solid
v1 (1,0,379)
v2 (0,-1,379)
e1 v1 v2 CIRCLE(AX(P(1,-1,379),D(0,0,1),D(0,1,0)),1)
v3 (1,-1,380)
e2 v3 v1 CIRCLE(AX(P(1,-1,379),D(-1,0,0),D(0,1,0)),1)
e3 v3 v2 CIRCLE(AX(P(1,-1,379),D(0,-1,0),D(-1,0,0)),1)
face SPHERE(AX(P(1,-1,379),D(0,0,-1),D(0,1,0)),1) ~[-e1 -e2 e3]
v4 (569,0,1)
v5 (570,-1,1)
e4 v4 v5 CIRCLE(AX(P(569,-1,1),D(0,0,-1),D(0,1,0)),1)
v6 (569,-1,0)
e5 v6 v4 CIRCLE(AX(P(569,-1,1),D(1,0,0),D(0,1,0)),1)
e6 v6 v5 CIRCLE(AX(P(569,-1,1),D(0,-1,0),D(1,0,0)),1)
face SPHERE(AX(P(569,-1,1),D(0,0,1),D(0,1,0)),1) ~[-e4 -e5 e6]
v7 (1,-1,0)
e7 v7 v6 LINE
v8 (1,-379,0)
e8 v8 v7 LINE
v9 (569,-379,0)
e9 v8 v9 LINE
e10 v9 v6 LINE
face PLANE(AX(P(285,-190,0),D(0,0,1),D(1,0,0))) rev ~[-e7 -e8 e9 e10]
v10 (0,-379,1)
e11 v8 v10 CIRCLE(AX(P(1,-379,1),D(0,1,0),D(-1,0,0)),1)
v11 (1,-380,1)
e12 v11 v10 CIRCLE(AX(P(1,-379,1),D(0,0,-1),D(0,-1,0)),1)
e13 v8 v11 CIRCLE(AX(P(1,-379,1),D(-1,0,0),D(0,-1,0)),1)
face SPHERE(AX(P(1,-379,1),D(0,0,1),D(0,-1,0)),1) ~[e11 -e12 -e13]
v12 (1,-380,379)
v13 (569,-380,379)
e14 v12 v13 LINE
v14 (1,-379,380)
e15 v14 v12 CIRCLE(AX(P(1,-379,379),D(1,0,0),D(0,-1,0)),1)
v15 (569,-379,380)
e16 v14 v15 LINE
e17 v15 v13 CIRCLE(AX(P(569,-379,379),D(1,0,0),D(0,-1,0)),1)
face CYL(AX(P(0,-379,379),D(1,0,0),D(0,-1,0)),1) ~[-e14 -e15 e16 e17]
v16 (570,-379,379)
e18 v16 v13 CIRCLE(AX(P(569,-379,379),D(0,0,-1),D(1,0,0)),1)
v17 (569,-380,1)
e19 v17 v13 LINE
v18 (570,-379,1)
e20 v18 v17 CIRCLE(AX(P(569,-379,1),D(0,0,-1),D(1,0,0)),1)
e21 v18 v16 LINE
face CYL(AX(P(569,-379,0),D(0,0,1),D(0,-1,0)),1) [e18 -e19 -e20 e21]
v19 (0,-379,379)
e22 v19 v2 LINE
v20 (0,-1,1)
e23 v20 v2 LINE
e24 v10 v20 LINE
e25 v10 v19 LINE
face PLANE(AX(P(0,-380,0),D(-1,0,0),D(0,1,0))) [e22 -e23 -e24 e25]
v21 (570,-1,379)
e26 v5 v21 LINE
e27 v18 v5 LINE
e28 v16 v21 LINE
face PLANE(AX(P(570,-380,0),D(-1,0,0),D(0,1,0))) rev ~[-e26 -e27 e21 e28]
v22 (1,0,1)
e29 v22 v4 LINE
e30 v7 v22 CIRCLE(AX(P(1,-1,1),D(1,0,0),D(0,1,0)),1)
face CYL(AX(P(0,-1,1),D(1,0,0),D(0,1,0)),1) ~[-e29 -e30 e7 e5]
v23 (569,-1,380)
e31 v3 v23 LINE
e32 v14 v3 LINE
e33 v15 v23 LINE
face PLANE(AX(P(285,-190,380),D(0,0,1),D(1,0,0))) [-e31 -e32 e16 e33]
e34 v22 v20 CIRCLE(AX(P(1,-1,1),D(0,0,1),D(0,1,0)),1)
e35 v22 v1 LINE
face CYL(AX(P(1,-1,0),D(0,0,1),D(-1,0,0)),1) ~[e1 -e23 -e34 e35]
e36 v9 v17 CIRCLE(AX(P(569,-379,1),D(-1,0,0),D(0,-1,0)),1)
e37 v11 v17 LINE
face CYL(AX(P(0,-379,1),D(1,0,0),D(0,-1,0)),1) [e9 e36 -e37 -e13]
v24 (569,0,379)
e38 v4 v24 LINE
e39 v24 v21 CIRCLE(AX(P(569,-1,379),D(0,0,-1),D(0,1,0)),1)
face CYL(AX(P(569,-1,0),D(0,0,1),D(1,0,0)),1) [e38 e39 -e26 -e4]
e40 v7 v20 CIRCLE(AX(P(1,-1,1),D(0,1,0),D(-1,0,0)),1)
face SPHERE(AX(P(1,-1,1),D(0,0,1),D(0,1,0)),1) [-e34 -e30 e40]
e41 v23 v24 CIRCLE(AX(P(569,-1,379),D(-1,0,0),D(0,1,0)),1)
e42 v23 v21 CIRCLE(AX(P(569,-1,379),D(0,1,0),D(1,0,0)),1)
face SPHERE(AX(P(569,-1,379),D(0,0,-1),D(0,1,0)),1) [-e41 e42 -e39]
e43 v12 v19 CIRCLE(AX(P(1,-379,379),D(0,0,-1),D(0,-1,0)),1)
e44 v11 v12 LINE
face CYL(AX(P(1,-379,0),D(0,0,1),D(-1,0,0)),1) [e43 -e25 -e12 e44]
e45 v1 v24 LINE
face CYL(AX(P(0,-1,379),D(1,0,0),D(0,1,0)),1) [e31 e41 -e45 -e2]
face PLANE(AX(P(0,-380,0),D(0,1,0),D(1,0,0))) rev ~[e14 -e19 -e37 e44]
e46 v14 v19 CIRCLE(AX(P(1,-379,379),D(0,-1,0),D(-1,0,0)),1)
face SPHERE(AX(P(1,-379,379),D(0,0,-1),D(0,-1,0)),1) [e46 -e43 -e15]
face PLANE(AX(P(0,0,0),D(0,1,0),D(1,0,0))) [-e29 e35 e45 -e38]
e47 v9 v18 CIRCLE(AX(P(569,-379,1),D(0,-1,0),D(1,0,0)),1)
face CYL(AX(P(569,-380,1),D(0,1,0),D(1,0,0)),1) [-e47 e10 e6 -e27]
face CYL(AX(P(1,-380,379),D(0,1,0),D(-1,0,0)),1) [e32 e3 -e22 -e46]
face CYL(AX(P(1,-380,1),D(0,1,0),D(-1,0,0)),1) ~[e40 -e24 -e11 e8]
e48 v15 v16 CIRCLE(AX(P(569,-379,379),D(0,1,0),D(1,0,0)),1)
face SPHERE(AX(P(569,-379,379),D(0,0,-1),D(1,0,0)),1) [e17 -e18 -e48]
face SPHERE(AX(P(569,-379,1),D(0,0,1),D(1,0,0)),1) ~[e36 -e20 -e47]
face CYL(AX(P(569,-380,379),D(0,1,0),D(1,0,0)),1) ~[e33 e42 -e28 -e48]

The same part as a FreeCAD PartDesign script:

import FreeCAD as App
import Part
import Sketcher
from FreeCAD import Vector

doc = App.newDocument("Part")
body = doc.addObject("PartDesign::Body", "Body")

# Sketch on XY plane
sketch1 = doc.addObject("Sketcher::SketchObject", "Sketch")
body.addObject(sketch1)
sketch1.AttachmentSupport = (doc.XY_Plane, [""])
sketch1.MapMode = "FlatFace"
sketch1.addGeometry(Part.LineSegment(Vector(0, 0, 0), Vector(0, -380, 0)), False)
sketch1.addGeometry(Part.LineSegment(Vector(0, -380, 0), Vector(570, -380, 0)), False)
sketch1.addGeometry(Part.LineSegment(Vector(570, -380, 0), Vector(570, 0, 0)), False)
sketch1.addGeometry(Part.LineSegment(Vector(570, 0, 0), Vector(0, 0, 0)), False)
sketch1.addConstraint(Sketcher.Constraint("Coincident", 0, 2, 1, 1))
sketch1.addConstraint(Sketcher.Constraint("Coincident", 1, 2, 2, 1))
sketch1.addConstraint(Sketcher.Constraint("Coincident", 2, 2, 3, 1))
sketch1.addConstraint(Sketcher.Constraint("Coincident", 3, 2, 0, 1))
sketch1.addConstraint(Sketcher.Constraint("Vertical", 0))
sketch1.addConstraint(Sketcher.Constraint("Horizontal", 1))
sketch1.addConstraint(Sketcher.Constraint("Vertical", 2))
sketch1.addConstraint(Sketcher.Constraint("Horizontal", 3))
sketch1.addConstraint(Sketcher.Constraint("Coincident", 3, 2, -1, 1))
sketch1.addConstraint(Sketcher.Constraint("DistanceX", 1, 1, 1, 2, 570.0))
sketch1.addConstraint(Sketcher.Constraint("DistanceY", 0, 2, 0, 1, 380.0))
pad1 = doc.addObject("PartDesign::Pad", "Pad")
body.addObject(pad1)
pad1.Profile = sketch1
pad1.Length = 380
doc.recompute()

fillet = doc.addObject("PartDesign::Fillet", "Fillet")
body.addObject(fillet)
fillet.Base = (pad1, ["Edge1"])
fillet.UseAllEdges = True
fillet.Radius = 1

doc.recompute()
